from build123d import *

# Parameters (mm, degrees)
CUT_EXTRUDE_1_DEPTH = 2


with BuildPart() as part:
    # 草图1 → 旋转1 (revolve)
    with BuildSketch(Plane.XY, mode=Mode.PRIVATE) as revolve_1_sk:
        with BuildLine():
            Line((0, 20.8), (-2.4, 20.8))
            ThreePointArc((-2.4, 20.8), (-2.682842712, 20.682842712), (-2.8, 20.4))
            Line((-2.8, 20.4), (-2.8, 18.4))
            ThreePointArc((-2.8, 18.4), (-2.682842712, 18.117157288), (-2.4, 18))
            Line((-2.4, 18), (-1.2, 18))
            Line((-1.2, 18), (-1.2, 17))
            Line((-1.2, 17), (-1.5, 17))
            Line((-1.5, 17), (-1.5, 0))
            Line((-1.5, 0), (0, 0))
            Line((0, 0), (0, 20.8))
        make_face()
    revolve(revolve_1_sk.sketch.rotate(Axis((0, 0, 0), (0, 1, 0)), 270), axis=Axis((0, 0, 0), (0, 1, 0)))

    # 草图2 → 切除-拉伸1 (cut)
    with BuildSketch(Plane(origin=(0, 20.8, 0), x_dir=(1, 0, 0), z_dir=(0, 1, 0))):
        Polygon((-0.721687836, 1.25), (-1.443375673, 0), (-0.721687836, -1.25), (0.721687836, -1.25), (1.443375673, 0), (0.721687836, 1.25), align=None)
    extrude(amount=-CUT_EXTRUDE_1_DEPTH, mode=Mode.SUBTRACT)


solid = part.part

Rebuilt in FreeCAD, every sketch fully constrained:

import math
import FreeCAD as App
import Part
import Sketcher
Q = App.Units.Quantity

doc = App.newDocument("Part")
params = doc.addObject("Spreadsheet::Sheet", "Params")
for row, (alias, value) in enumerate([
    ("sketch1_radius", "0.4 mm"),
    ("sketch1_height", "2 mm"),
    ("sketch1_height2", "1 mm"),
    ("sketch1_height3", "17 mm"),
    ("sketch1_width", "2.4 mm"),
    ("revolution_angle", "360 deg"),
    ("pocket1_length", "2 mm"),
], start=1):
    params.set(f"A{row}", alias)
    params.set(f"B{row}", "=" + value)
    params.setAlias(f"B{row}", alias)

body = doc.addObject("PartDesign::Body", "Body")

sketch1 = doc.addObject("Sketcher::SketchObject", "Sketch")
body.addObject(sketch1)
sketch1.AttachmentSupport = (doc.XY_Plane, [""])
sketch1.MapMode = "FlatFace"
sketch1.addGeometry(Part.LineSegment(App.Vector(0, 20.8, 0), App.Vector(-2.4, 20.8, 0)), False)
sketch1.addGeometry(Part.ArcOfCircle(Part.Circle(App.Vector(-2.4, 20.4, 0), App.Vector(0, 0, 1), 0.4), math.radians(90), math.radians(180)), False)
sketch1.addGeometry(Part.LineSegment(App.Vector(-2.8, 20.4, 0), App.Vector(-2.8, 18.4, 0)), False)
sketch1.addGeometry(Part.ArcOfCircle(Part.Circle(App.Vector(-2.4, 18.4, 0), App.Vector(0, 0, 1), 0.4), math.radians(-180), math.radians(-90)), False)
sketch1.addGeometry(Part.LineSegment(App.Vector(-2.4, 18, 0), App.Vector(-1.2, 18, 0)), False)
sketch1.addGeometry(Part.LineSegment(App.Vector(-1.2, 18, 0), App.Vector(-1.2, 17, 0)), False)
sketch1.addGeometry(Part.LineSegment(App.Vector(-1.2, 17, 0), App.Vector(-1.5, 17, 0)), False)
sketch1.addGeometry(Part.LineSegment(App.Vector(-1.5, 17, 0), App.Vector(-1.5, 0, 0)), False)
sketch1.addGeometry(Part.LineSegment(App.Vector(-1.5, 0, 0), App.Vector(0, 0, 0)), False)
sketch1.addGeometry(Part.LineSegment(App.Vector(0, 0, 0), App.Vector(0, 20.8, 0)), False)
sketch1.addConstraint(Sketcher.Constraint("Tangent", 0, 2, 1, 1))
sketch1.addConstraint(Sketcher.Constraint("Tangent", 1, 2, 2, 1))
sketch1.addConstraint(Sketcher.Constraint("Tangent", 2, 2, 3, 1))
sketch1.addConstraint(Sketcher.Constraint("Tangent", 3, 2, 4, 1))
sketch1.addConstraint(Sketcher.Constraint("Coincident", 4, 2, 5, 1))
sketch1.addConstraint(Sketcher.Constraint("Coincident", 5, 2, 6, 1))
sketch1.addConstraint(Sketcher.Constraint("Coincident", 6, 2, 7, 1))
sketch1.addConstraint(Sketcher.Constraint("Coincident", 7, 2, 8, 1))
sketch1.addConstraint(Sketcher.Constraint("Coincident", 8, 2, 9, 1))
sketch1.addConstraint(Sketcher.Constraint("Coincident", 9, 2, 0, 1))
sketch1.addConstraint(Sketcher.Constraint("Horizontal", 0))
sketch1.addConstraint(Sketcher.Constraint("Vertical", 2))
sketch1.addConstraint(Sketcher.Constraint("Horizontal", 4))
sketch1.addConstraint(Sketcher.Constraint("Vertical", 5))
sketch1.addConstraint(Sketcher.Constraint("Horizontal", 6))
sketch1.addConstraint(Sketcher.Constraint("Vertical", 7))
sketch1.addConstraint(Sketcher.Constraint("Horizontal", 8))
sketch1.addConstraint(Sketcher.Constraint("Vertical", 9))
sketch1.addConstraint(Sketcher.Constraint("Coincident", 8, 2, -1, 1))
sketch1.addConstraint(Sketcher.Constraint("Equal", 1, 3))
sketch1.addConstraint(Sketcher.Constraint("Radius", 1, 0.4))
sketch1.addConstraint(Sketcher.Constraint("DistanceY", 2, 2, 2, 1, 2.0))
sketch1.addConstraint(Sketcher.Constraint("DistanceY", 5, 2, 5, 1, 1.0))
sketch1.addConstraint(Sketcher.Constraint("DistanceY", 7, 2, 7, 1, 17.0))
sketch1.addConstraint(Sketcher.Constraint("DistanceX", 0, 2, 0, 1, 2.4))
sketch1.addConstraint(Sketcher.Constraint("DistanceX", 4, 1, 4, 2, 1.2))
sketch1.addConstraint(Sketcher.Constraint("DistanceX", 6, 2, 6, 1, 0.3))
sketch1.setExpression("Constraints[20]", "Params.sketch1_radius")
sketch1.setExpression("Constraints[21]", "Params.sketch1_height")
sketch1.setExpression("Constraints[22]", "Params.sketch1_height2")
sketch1.setExpression("Constraints[23]", "Params.sketch1_height3")
sketch1.setExpression("Constraints[24]", "Params.sketch1_width")
revolution = doc.addObject("PartDesign::Revolution", "Revolution")
body.addObject(revolution)
revolution.Profile = sketch1
revolution.ReferenceAxis = (sketch1, ["V_Axis"])
revolution.setExpression("Angle", "Params.revolution_angle")

sketch2 = doc.addObject("Sketcher::SketchObject", "Sketch001")
body.addObject(sketch2)
sketch2.AttachmentSupport = (doc.XZ_Plane, [""])
sketch2.MapMode = "FlatFace"
sketch2.AttachmentOffset = App.Placement(App.Vector(0, 0, -20.8), App.Rotation())
sketch2.addGeometry(Part.LineSegment(App.Vector(-0.7, -1.2, 0), App.Vector(-1.4, 0, 0)), False)
sketch2.addGeometry(Part.LineSegment(App.Vector(-1.4, 0, 0), App.Vector(-0.7, 1.2, 0)), False)
sketch2.addGeometry(Part.LineSegment(App.Vector(-0.7, 1.2, 0), App.Vector(0.7, 1.2, 0)), False)
sketch2.addGeometry(Part.LineSegment(App.Vector(0.7, 1.2, 0), App.Vector(1.4, 0, 0)), False)
sketch2.addGeometry(Part.LineSegment(App.Vector(1.4, 0, 0), App.Vector(0.7, -1.2, 0)), False)
sketch2.addGeometry(Part.LineSegment(App.Vector(0.7, -1.2, 0), App.Vector(-0.7, -1.2, 0)), False)
sketch2.addConstraint(Sketcher.Constraint("Coincident", 0, 2, 1, 1))
sketch2.addConstraint(Sketcher.Constraint("Coincident", 1, 2, 2, 1))
sketch2.addConstraint(Sketcher.Constraint("Coincident", 2, 2, 3, 1))
sketch2.addConstraint(Sketcher.Constraint("Coincident", 3, 2, 4, 1))
sketch2.addConstraint(Sketcher.Constraint("Coincident", 4, 2, 5, 1))
sketch2.addConstraint(Sketcher.Constraint("Coincident", 5, 2, 0, 1))
sketch2.addConstraint(Sketcher.Constraint("Horizontal", 2))
sketch2.addConstraint(Sketcher.Constraint("Horizontal", 5))
sketch2.addConstraint(Sketcher.Constraint("Symmetric", 0, 2, 3, 2, -1, 1))
sketch2.addConstraint(Sketcher.Constraint("Symmetric", 1, 2, 4, 2, -1, 1))
sketch2.addConstraint(Sketcher.Constraint("PointOnObject", 0, 2, -1))
sketch2.addConstraint(Sketcher.Constraint("Parallel", 0, 3))
sketch2.addConstraint(Sketcher.Constraint("Vertical", 2, 2, 4, 2))
sketch2.addConstraint(Sketcher.Constraint("Angle", 0, Q("120 deg")))
sketch2.addConstraint(Sketcher.Constraint("DistanceY", 4, 2, 2, 2, 2.5))
sketch2.addConstraint(Sketcher.Constraint("DistanceX", 2, 1, 2, 2, 1.443376))
pocket1 = doc.addObject("PartDesign::Pocket", "Pocket")
body.addObject(pocket1)
pocket1.Profile = sketch2
pocket1.setExpression("Length", "Params.pocket1_length")
pocket1.Reversed = True

doc.recompute()
